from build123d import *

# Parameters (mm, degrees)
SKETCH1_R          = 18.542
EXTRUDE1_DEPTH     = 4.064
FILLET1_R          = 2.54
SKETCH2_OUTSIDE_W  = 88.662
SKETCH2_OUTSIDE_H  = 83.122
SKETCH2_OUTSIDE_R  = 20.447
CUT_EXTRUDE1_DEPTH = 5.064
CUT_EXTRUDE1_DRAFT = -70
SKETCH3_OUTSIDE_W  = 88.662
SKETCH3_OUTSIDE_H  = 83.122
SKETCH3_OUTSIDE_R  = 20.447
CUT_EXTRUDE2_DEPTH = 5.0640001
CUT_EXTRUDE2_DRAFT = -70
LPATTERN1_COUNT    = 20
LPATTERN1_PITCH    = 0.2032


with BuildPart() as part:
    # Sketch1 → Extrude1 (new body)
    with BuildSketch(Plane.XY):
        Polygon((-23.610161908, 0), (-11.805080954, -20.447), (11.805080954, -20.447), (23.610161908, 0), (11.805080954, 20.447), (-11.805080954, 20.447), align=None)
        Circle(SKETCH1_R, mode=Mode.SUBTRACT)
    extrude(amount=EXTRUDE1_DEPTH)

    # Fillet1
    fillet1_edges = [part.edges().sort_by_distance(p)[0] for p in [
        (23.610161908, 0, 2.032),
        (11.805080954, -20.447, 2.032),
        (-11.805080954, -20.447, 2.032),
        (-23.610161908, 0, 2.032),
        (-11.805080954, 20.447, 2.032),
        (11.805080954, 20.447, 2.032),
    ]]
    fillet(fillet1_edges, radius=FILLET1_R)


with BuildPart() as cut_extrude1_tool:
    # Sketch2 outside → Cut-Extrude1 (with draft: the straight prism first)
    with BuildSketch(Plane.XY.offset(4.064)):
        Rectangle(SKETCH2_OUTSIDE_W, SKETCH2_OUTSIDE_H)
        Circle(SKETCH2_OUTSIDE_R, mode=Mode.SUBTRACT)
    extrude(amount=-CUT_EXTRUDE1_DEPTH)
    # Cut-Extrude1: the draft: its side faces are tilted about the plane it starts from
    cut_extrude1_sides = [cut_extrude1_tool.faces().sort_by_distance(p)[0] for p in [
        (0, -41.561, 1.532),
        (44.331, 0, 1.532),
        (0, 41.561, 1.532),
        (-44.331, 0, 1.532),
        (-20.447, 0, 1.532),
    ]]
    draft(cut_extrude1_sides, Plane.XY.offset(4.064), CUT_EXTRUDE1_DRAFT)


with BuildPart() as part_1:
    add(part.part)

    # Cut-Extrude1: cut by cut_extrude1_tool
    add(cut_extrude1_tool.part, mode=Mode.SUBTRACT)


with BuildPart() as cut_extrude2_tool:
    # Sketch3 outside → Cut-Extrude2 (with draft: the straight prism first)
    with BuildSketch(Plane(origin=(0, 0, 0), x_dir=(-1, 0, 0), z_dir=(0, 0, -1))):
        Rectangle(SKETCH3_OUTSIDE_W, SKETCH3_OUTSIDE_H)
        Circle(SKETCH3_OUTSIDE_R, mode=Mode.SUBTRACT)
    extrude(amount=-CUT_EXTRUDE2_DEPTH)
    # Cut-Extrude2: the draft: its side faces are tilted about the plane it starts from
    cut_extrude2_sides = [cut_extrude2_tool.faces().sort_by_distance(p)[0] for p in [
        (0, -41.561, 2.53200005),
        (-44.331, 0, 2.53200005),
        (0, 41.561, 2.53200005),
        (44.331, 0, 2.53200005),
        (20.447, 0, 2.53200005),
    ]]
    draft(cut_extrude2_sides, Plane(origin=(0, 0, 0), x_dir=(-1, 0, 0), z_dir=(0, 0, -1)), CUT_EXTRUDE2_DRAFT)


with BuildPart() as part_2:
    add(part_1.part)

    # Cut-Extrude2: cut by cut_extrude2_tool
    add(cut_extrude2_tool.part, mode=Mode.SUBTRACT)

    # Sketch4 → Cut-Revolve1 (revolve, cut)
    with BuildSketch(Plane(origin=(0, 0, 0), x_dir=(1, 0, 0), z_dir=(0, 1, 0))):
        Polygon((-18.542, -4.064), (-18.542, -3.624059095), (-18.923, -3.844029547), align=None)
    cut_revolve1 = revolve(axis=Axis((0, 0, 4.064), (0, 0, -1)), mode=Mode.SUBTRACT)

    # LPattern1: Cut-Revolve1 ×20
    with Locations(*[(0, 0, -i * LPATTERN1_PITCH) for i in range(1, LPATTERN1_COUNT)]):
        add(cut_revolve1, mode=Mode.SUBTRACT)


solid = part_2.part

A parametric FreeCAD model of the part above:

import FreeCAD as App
import Part
import Sketcher

V = App.Vector
Q = App.Units.Quantity


def edges_at(feature, points):
    """Names of the edges that pass closest to the given points."""
    edges = feature.Shape.Edges
    near = lambda p: min(range(len(edges)), key=lambda i: edges[i].distToShape(Part.Vertex(*p))[0])
    return sorted({f"Edge{near(p) + 1}" for p in points})


def faces_at(feature, points):
    """Names of the faces that lie closest to the given points."""
    faces = feature.Shape.Faces
    near = lambda p: min(range(len(faces)), key=lambda i: faces[i].distToShape(Part.Vertex(*p))[0])
    return sorted({f"Face{near(p) + 1}" for p in points})


def add_polygon(sketch, points):
    """Adds a closed chain of lines whose ends are joined by coincident constraints."""
    first, n = sketch.GeometryCount, len(points)
    for a, b in zip(points, points[1:] + points[:1]):
        sketch.addGeometry(Part.LineSegment(App.Vector(*a, 0), App.Vector(*b, 0)), False)
    for i in range(n):
        sketch.addConstraint(Sketcher.Constraint("Coincident", first + i, 2, first + (i + 1) % n, 1))

doc = App.newDocument("Part")
params = doc.addObject("Spreadsheet::Sheet", "Params")
for row, (alias, value) in enumerate([
    ("sketch1_diameter", "1.46 in"),
    ("pad1_length", "0.16 in"),
    ("fillet_radius", "0.1 in"),
    ("sketch2_diameter", "1.61 in"),
    ("pad2_length", "5.064 mm"),
    ("draft_angle", "70 deg"),
    ("sketch3_diameter", "1.61 in"),
    ("pad3_length", "5.064 mm"),
    ("draft2_angle", "70 deg"),
    ("groove_angle", "360 deg"),
    ("linearpattern_pitch", "0.008 in"),
], start=1):
    params.set(f"A{row}", alias)
    params.set(f"B{row}", "=" + value)
    params.setAlias(f"B{row}", alias)

body = doc.addObject("PartDesign::Body", "Body")

# Sketch on XY plane
sketch1 = doc.addObject("Sketcher::SketchObject", "Sketch")
body.addObject(sketch1)
sketch1.AttachmentSupport = (doc.XY_Plane, [""])
sketch1.MapMode = "FlatFace"
add_polygon(sketch1, [(-24, 0), (-12, -20), (12, -20), (24, 0), (12, 20), (-12, 20)])  # lines 0-5
sketch1.addGeometry(Part.Circle(V(0, 0, 0), V(0, 0, 1), 19), False)  # 6
sketch1.addConstraint([
    Sketcher.Constraint("Horizontal", 1),
    Sketcher.Constraint("Horizontal", 4),
    Sketcher.Constraint("Coincident", 6, 3, -1, 1),
    Sketcher.Constraint("Symmetric", 0, 2, 3, 2, -1, 1),
    Sketcher.Constraint("Symmetric", 2, 2, 5, 2, -1, 1),
    Sketcher.Constraint("PointOnObject", 2, 2, -1),
    Sketcher.Constraint("Parallel", 2, 5),
    Sketcher.Constraint("Vertical", 1, 2, 3, 2),
    Sketcher.Constraint("Diameter", 6, Q("1.46 in")),
    Sketcher.Constraint("Angle", 0, Q("-60 deg")),
    Sketcher.Constraint("DistanceY", 1, 2, 3, 2, Q("1.61 in")),
    Sketcher.Constraint("DistanceX", 1, 1, 1, 2, Q("23.610162 mm")),
])
sketch1.setExpression("Constraints[14]", "Params.sketch1_diameter")
pad1 = doc.addObject("PartDesign::Pad", "Pad")
body.addObject(pad1)
pad1.Profile = sketch1
pad1.setExpression("Length", "Params.pad1_length")
doc.recompute()

fillet = doc.addObject("PartDesign::Fillet", "Fillet")
body.addObject(fillet)
fillet.Base = (pad1, edges_at(pad1, [
    (23.61, 0, 2.032),
    (11.805, -20.447, 2.032),
    (-11.805, -20.447, 2.032),
    (-23.61, 0, 2.032),
    (-11.805, 20.447, 2.032),
    (11.805, 20.447, 2.032),
]))
fillet.setExpression("Radius", "Params.fillet_radius")
body2 = doc.addObject("PartDesign::Body", "Body001")

# Sketch on XY plane
sketch2 = doc.addObject("Sketcher::SketchObject", "Sketch001")
body2.addObject(sketch2)
sketch2.AttachmentSupport = (doc.getObject("XY_Plane001"), [""])
sketch2.MapMode = "FlatFace"
sketch2.AttachmentOffset = App.Placement(V(0, 0, 0.16 * 25.4), App.Rotation())
add_polygon(sketch2, [(-44, 42), (-44, -42), (44, -42), (44, 42)])  # lines 0-3
sketch2.addGeometry(Part.Circle(V(0, 0, 0), V(0, 0, 1), 20), False)  # 4
sketch2.addConstraint([
    Sketcher.Constraint("Vertical", 0),
    Sketcher.Constraint("Horizontal", 1),
    Sketcher.Constraint("Vertical", 2),
    Sketcher.Constraint("Horizontal", 3),
    Sketcher.Constraint("Coincident", 4, 3, -1, 1),
    Sketcher.Constraint("Symmetric", 0, 2, 2, 2, -1, 1),
    Sketcher.Constraint("Diameter", 4, Q("1.61 in")),
    Sketcher.Constraint("DistanceX", 1, 1, 1, 2, Q("88.662 mm")),
    Sketcher.Constraint("DistanceY", 0, 2, 0, 1, Q("83.122 mm")),
])
sketch2.setExpression("Constraints[10]", "Params.sketch2_diameter")
pad2 = doc.addObject("PartDesign::Pad", "Pad001")
body2.addObject(pad2)
pad2.Profile = sketch2
pad2.setExpression("Length", "Params.pad2_length")
pad2.Reversed = True
doc.recompute()

datumplane = doc.addObject("PartDesign::Plane", "DatumPlane")
body2.addObject(datumplane)
datumplane.AttachmentSupport = (doc.getObject("XY_Plane001"), [""])
datumplane.MapMode = "FlatFace"
datumplane.AttachmentOffset = App.Placement(V(0, 0, 0.16 * 25.4), App.Rotation())
draft = doc.addObject("PartDesign::Draft", "Draft")
body2.addObject(draft)
draft.Base = (pad2, faces_at(pad2, [
    (0, -41.561, 1.532),
    (44.331, 0, 1.532),
    (0, 41.561, 1.532),
    (-44.331, 0, 1.532),
    (-20.447, 0, 1.532),
]))
draft.NeutralPlane = (datumplane, [""])
draft.setExpression("Angle", "Params.draft_angle")
draft.Reversed = True
doc.recompute()

boolean = doc.addObject("PartDesign::Boolean", "Boolean")
body.addObject(boolean)
boolean.Type = "Cut"
boolean.addObjects([body2])
body3 = doc.addObject("PartDesign::Body", "Body002")

# Sketch on XY plane
sketch3 = doc.addObject("Sketcher::SketchObject", "Sketch002")
body3.addObject(sketch3)
sketch3.AttachmentSupport = (doc.getObject("XY_Plane002"), [""])
sketch3.MapMode = "FlatFace"
add_polygon(sketch3, [(44, 42), (44, -42), (-44, -42), (-44, 42)])  # lines 0-3
sketch3.addGeometry(Part.Circle(V(0, 0, 0), V(0, 0, 1), 20), False)  # 4
sketch3.addConstraint([
    Sketcher.Constraint("Vertical", 0),
    Sketcher.Constraint("Horizontal", 1),
    Sketcher.Constraint("Vertical", 2),
    Sketcher.Constraint("Horizontal", 3),
    Sketcher.Constraint("Coincident", 4, 3, -1, 1),
    Sketcher.Constraint("Symmetric", 0, 2, 2, 2, -1, 1),
    Sketcher.Constraint("Diameter", 4, Q("1.61 in")),
    Sketcher.Constraint("DistanceX", 1, 2, 1, 1, Q("88.662 mm")),
    Sketcher.Constraint("DistanceY", 0, 2, 0, 1, Q("83.122 mm")),
])
sketch3.setExpression("Constraints[10]", "Params.sketch3_diameter")
pad3 = doc.addObject("PartDesign::Pad", "Pad002")
body3.addObject(pad3)
pad3.Profile = sketch3
pad3.setExpression("Length", "Params.pad3_length")
doc.recompute()

draft2 = doc.addObject("PartDesign::Draft", "Draft001")
body3.addObject(draft2)
draft2.Base = (pad3, faces_at(pad3, [
    (0, -41.561, 2.532),
    (-44.331, 0, 2.532),
    (0, 41.561, 2.532),
    (44.331, 0, 2.532),
    (20.447, 0, 2.532),
]))
draft2.NeutralPlane = (doc.getObject("XY_Plane002"), [""])
draft2.setExpression("Angle", "Params.draft2_angle")
draft2.Reversed = False
doc.recompute()

boolean2 = doc.addObject("PartDesign::Boolean", "Boolean001")
body.addObject(boolean2)
boolean2.Type = "Cut"
boolean2.addObjects([body3])

# Sketch on XZ plane
sketch4 = doc.addObject("Sketcher::SketchObject", "Sketch003")
body.addObject(sketch4)
sketch4.AttachmentSupport = (doc.XZ_Plane, [""])
sketch4.MapMode = "FlatFace"
add_polygon(sketch4, [(-18.54, 4.06), (-18.54, 3.62), (-18.92, 3.84)])  # lines 0-2
sketch4.addConstraint([
    Sketcher.Constraint("Vertical", 0),
    Sketcher.Constraint("Equal", 1, 2),
    Sketcher.Constraint("Angle", 1, Q("150 deg")),
    Sketcher.Constraint("DistanceX", 0, 2, -1, 1, Q("0.73 in")),
    Sketcher.Constraint("DistanceY", -1, 1, 2, 2, Q("0.16 in")),
    Sketcher.Constraint("DistanceX", 1, 2, -1, 1, Q("0.745 in")),
])
groove = doc.addObject("PartDesign::Groove", "Groove")
body.addObject(groove)
groove.Profile = sketch4
groove.ReferenceAxis = (sketch4, ["V_Axis"])
groove.setExpression("Angle", "Params.groove_angle")
doc.recompute()

linearpattern = doc.addObject("PartDesign::LinearPattern", "LinearPattern")
body.addObject(linearpattern)
linearpattern.Originals = [groove]
linearpattern.Direction = (doc.Z_Axis, [""])
linearpattern.Mode = "offset"
linearpattern.setExpression("Offset", "Params.linearpattern_pitch")
linearpattern.Occurrences = 20
linearpattern.Reversed = True
body.Tip = linearpattern

doc.recompute()
